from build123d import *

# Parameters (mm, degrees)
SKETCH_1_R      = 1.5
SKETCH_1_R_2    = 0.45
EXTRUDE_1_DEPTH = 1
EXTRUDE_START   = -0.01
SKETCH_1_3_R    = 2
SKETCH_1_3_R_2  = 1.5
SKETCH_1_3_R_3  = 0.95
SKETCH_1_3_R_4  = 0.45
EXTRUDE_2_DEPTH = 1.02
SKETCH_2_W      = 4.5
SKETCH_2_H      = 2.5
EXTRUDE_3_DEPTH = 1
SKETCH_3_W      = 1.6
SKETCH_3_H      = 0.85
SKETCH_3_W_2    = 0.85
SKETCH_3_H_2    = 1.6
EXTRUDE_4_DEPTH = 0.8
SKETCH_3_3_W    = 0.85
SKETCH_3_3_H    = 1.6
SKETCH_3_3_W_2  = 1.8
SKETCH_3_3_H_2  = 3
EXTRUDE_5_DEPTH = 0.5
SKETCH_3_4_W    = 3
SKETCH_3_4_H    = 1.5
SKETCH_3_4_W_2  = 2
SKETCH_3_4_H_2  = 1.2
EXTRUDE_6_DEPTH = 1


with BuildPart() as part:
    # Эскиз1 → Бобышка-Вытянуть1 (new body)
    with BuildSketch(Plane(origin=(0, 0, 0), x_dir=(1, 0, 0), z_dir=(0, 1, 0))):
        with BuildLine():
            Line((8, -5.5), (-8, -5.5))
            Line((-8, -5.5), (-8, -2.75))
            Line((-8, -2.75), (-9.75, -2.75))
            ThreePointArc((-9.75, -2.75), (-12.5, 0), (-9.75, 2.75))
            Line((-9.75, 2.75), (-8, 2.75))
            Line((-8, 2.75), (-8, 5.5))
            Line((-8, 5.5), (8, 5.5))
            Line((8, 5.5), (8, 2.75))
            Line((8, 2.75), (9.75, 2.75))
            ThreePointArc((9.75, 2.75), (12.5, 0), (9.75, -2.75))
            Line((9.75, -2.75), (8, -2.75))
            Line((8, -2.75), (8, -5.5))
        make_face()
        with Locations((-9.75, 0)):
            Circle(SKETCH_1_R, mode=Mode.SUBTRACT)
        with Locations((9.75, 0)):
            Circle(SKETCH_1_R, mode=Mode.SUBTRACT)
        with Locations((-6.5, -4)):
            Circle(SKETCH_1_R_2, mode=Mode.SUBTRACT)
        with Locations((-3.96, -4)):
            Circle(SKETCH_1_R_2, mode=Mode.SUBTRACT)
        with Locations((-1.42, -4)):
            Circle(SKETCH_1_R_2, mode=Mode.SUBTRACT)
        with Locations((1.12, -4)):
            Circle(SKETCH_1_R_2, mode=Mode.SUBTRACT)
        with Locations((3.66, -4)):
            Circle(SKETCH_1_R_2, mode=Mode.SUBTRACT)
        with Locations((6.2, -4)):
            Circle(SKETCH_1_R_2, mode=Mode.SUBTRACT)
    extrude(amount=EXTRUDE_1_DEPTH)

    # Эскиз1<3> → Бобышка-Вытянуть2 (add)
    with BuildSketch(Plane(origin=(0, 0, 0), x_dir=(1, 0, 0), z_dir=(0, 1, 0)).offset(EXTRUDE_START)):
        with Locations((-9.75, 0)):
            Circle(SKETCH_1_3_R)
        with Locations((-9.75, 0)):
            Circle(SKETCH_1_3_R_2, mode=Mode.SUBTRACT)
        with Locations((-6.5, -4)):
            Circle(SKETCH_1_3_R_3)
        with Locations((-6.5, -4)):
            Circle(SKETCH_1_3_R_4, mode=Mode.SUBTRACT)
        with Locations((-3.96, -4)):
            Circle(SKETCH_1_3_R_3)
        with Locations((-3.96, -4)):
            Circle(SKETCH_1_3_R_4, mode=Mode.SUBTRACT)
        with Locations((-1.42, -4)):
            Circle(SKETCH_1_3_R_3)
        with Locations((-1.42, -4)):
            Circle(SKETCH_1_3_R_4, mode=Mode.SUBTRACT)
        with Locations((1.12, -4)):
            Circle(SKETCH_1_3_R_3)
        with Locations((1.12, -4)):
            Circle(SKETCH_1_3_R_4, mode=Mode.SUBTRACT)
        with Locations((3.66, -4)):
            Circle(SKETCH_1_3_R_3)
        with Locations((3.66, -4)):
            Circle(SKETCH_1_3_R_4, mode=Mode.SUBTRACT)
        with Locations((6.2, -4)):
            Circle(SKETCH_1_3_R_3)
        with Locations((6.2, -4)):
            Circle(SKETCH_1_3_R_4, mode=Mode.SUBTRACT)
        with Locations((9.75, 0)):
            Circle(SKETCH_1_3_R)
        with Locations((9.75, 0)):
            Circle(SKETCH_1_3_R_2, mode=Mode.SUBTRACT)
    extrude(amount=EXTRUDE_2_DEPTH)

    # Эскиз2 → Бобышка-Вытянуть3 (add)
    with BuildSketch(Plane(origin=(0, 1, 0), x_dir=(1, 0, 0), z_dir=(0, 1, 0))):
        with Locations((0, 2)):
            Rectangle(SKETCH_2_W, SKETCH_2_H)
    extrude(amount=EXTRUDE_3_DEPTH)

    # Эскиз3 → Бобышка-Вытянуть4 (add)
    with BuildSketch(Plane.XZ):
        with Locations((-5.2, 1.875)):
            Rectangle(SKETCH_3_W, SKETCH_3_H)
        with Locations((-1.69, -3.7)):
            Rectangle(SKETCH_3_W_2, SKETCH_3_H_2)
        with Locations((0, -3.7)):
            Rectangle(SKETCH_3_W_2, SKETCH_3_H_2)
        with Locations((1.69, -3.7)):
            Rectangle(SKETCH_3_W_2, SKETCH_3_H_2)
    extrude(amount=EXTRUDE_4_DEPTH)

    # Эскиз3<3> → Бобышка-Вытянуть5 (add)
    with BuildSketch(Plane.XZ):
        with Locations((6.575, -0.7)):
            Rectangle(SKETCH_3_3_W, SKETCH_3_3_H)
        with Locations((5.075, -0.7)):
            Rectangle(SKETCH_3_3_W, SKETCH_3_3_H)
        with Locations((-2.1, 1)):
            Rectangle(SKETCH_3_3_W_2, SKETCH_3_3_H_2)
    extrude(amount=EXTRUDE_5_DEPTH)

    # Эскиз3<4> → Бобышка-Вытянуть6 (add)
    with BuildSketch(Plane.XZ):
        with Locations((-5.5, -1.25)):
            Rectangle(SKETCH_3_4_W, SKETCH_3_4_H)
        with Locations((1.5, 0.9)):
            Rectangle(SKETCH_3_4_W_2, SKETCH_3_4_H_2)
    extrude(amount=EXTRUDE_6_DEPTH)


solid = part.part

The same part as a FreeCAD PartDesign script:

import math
import FreeCAD as App
import Part
import Sketcher
from FreeCAD import Vector


def add_polygon(sketch, points):
    """Adds a closed chain of lines whose ends are joined by coincident constraints."""
    first, n = sketch.GeometryCount, len(points)
    for a, b in zip(points, points[1:] + points[:1]):
        sketch.addGeometry(Part.LineSegment(App.Vector(*a, 0), App.Vector(*b, 0)), False)
    for i in range(n):
        sketch.addConstraint(Sketcher.Constraint("Coincident", first + i, 2, first + (i + 1) % n, 1))

doc = App.newDocument("Part")
body = doc.addObject("PartDesign::Body", "Body")

sketch1 = body.newObject("Sketcher::SketchObject", "Sketch")
sketch1.AttachmentSupport = (doc.getObject("XZ_Plane"), [""])
sketch1.MapMode = "FlatFace"
sketch1.addGeometry(Part.LineSegment(Vector(-8, 5.5, 0), Vector(8, 5.5, 0)), False)
sketch1.addGeometry(Part.LineSegment(Vector(8, 5.5, 0), Vector(8, 2.75, 0)), False)
sketch1.addGeometry(Part.LineSegment(Vector(8, 2.75, 0), Vector(9.75, 2.75, 0)), False)
sketch1.addGeometry(Part.ArcOfCircle(Part.Circle(Vector(9.75, 0, 0), Vector(0, 0, 1), 2.75), math.radians(-90), math.radians(90)), False)
sketch1.addGeometry(Part.LineSegment(Vector(9.75, -2.75, 0), Vector(8, -2.75, 0)), False)
sketch1.addGeometry(Part.LineSegment(Vector(8, -2.75, 0), Vector(8, -5.5, 0)), False)
sketch1.addGeometry(Part.LineSegment(Vector(8, -5.5, 0), Vector(-8, -5.5, 0)), False)
sketch1.addGeometry(Part.LineSegment(Vector(-8, -5.5, 0), Vector(-8, -2.75, 0)), False)
sketch1.addGeometry(Part.LineSegment(Vector(-8, -2.75, 0), Vector(-9.75, -2.75, 0)), False)
sketch1.addGeometry(Part.ArcOfCircle(Part.Circle(Vector(-9.75, 0, 0), Vector(0, 0, 1), 2.75), math.radians(90), math.radians(270)), False)
sketch1.addGeometry(Part.LineSegment(Vector(-9.75, 2.75, 0), Vector(-8, 2.75, 0)), False)
sketch1.addGeometry(Part.LineSegment(Vector(-8, 2.75, 0), Vector(-8, 5.5, 0)), False)
sketch1.addGeometry(Part.Circle(Vector(6.2, 4, 0), Vector(0, 0, 1), 0.45), False)
sketch1.addGeometry(Part.Circle(Vector(3.66, 4, 0), Vector(0, 0, 1), 0.45), False)
sketch1.addGeometry(Part.Circle(Vector(1.12, 4, 0), Vector(0, 0, 1), 0.45), False)
sketch1.addGeometry(Part.Circle(Vector(-1.42, 4, 0), Vector(0, 0, 1), 0.45), False)
sketch1.addGeometry(Part.Circle(Vector(-3.96, 4, 0), Vector(0, 0, 1), 0.45), False)
sketch1.addGeometry(Part.Circle(Vector(-6.5, 4, 0), Vector(0, 0, 1), 0.45), False)
sketch1.addGeometry(Part.Circle(Vector(9.75, 0, 0), Vector(0, 0, 1), 1.5), False)
sketch1.addGeometry(Part.Circle(Vector(-9.75, 0, 0), Vector(0, 0, 1), 1.5), False)
sketch1.addConstraint(Sketcher.Constraint("Coincident", 0, 2, 1, 1))
sketch1.addConstraint(Sketcher.Constraint("Coincident", 1, 2, 2, 1))
sketch1.addConstraint(Sketcher.Constraint("Tangent", 2, 2, 3, 2))
sketch1.addConstraint(Sketcher.Constraint("Tangent", 3, 1, 4, 1))
sketch1.addConstraint(Sketcher.Constraint("Coincident", 4, 2, 5, 1))
sketch1.addConstraint(Sketcher.Constraint("Coincident", 5, 2, 6, 1))
sketch1.addConstraint(Sketcher.Constraint("Coincident", 6, 2, 7, 1))
sketch1.addConstraint(Sketcher.Constraint("Coincident", 7, 2, 8, 1))
sketch1.addConstraint(Sketcher.Constraint("Tangent", 8, 2, 9, 2))
sketch1.addConstraint(Sketcher.Constraint("Tangent", 9, 1, 10, 1))
sketch1.addConstraint(Sketcher.Constraint("Coincident", 10, 2, 11, 1))
sketch1.addConstraint(Sketcher.Constraint("Coincident", 11, 2, 0, 1))
sketch1.addConstraint(Sketcher.Constraint("Horizontal", 0))
sketch1.addConstraint(Sketcher.Constraint("Vertical", 1))
sketch1.addConstraint(Sketcher.Constraint("Horizontal", 2))
sketch1.addConstraint(Sketcher.Constraint("Horizontal", 4))
sketch1.addConstraint(Sketcher.Constraint("Vertical", 5))
sketch1.addConstraint(Sketcher.Constraint("Horizontal", 6))
sketch1.addConstraint(Sketcher.Constraint("Vertical", 7))
sketch1.addConstraint(Sketcher.Constraint("Horizontal", 8))
sketch1.addConstraint(Sketcher.Constraint("Horizontal", 10))
sketch1.addConstraint(Sketcher.Constraint("Vertical", 11))
sketch1.addConstraint(Sketcher.Constraint("Coincident", 18, 3, 3, 3))
sketch1.addConstraint(Sketcher.Constraint("Coincident", 19, 3, 9, 3))
sketch1.addConstraint(Sketcher.Constraint("Equal", 3, 9))
sketch1.addConstraint(Sketcher.Constraint("Equal", 12, 13))
sketch1.addConstraint(Sketcher.Constraint("Equal", 13, 14))
sketch1.addConstraint(Sketcher.Constraint("Equal", 14, 15))
sketch1.addConstraint(Sketcher.Constraint("Equal", 15, 16))
sketch1.addConstraint(Sketcher.Constraint("Equal", 16, 17))
sketch1.addConstraint(Sketcher.Constraint("Equal", 18, 19))
sketch1.addConstraint(Sketcher.Constraint("Symmetric", 3, 3, 9, 3, -1, 1))
sketch1.addConstraint(Sketcher.Constraint("Symmetric", 0, 2, 6, 2, -1, 1))
sketch1.addConstraint(Sketcher.Constraint("Symmetric", 4, 2, 7, 2, -2))
sketch1.addConstraint(Sketcher.Constraint("Horizontal", 12, 3, 13, 3))
sketch1.addConstraint(Sketcher.Constraint("Horizontal", 13, 3, 14, 3))
sketch1.addConstraint(Sketcher.Constraint("Horizontal", 14, 3, 15, 3))
sketch1.addConstraint(Sketcher.Constraint("Horizontal", 15, 3, 16, 3))
sketch1.addConstraint(Sketcher.Constraint("Horizontal", 16, 3, 17, 3))
sketch1.addConstraint(Sketcher.Constraint("Vertical", 7, 2, 10, 2))
sketch1.addConstraint(Sketcher.Constraint("Diameter", 18, 3.0))
sketch1.addConstraint(Sketcher.Constraint("Diameter", 12, 0.9))
sketch1.addConstraint(Sketcher.Constraint("DistanceX", 0, 1, 0, 2, 16.0))
sketch1.addConstraint(Sketcher.Constraint("Radius", 3, 2.75))
sketch1.addConstraint(Sketcher.Constraint("DistanceY", -1, 1, 12, 3, 4.0))
sketch1.addConstraint(Sketcher.Constraint("DistanceX", 2, 1, 2, 2, 1.75))
sketch1.addConstraint(Sketcher.Constraint("DistanceY", 1, 2, 1, 1, 2.75))
sketch1.addConstraint(Sketcher.Constraint("DistanceX", -1, 1, 12, 3, 6.2))
sketch1.addConstraint(Sketcher.Constraint("DistanceX", 17, 3, -1, 1, 6.5))
sketch1.addConstraint(Sketcher.Constraint("DistanceX", -1, 1, 13, 3, 3.66))
sketch1.addConstraint(Sketcher.Constraint("DistanceX", -1, 1, 14, 3, 1.12))
sketch1.addConstraint(Sketcher.Constraint("DistanceX", 15, 3, -1, 1, 1.42))
sketch1.addConstraint(Sketcher.Constraint("DistanceX", 16, 3, -1, 1, 3.96))
pad1 = body.newObject("PartDesign::Pad", "Pad")
pad1.Profile = sketch1
pad1.Length = 1
pad1.Reversed = True

sketch2 = body.newObject("Sketcher::SketchObject", "Sketch001")
sketch2.AttachmentSupport = (doc.getObject("XZ_Plane"), [""])
sketch2.MapMode = "FlatFace"
sketch2.AttachmentOffset = App.Placement(Vector(0, 0, 0.01), App.Rotation())
sketch2.addGeometry(Part.Circle(Vector(-9.75, 0, 0), Vector(0, 0, 1), 2), False)
sketch2.addGeometry(Part.Circle(Vector(-9.75, 0, 0), Vector(0, 0, 1), 1.5), False)
sketch2.addGeometry(Part.Circle(Vector(-6.5, 4, 0), Vector(0, 0, 1), 0.95), False)
sketch2.addGeometry(Part.Circle(Vector(-6.5, 4, 0), Vector(0, 0, 1), 0.45), False)
sketch2.addGeometry(Part.Circle(Vector(-3.96, 4, 0), Vector(0, 0, 1), 0.95), False)
sketch2.addGeometry(Part.Circle(Vector(-3.96, 4, 0), Vector(0, 0, 1), 0.45), False)
sketch2.addGeometry(Part.Circle(Vector(-1.42, 4, 0), Vector(0, 0, 1), 0.95), False)
sketch2.addGeometry(Part.Circle(Vector(-1.42, 4, 0), Vector(0, 0, 1), 0.45), False)
sketch2.addGeometry(Part.Circle(Vector(1.12, 4, 0), Vector(0, 0, 1), 0.95), False)
sketch2.addGeometry(Part.Circle(Vector(1.12, 4, 0), Vector(0, 0, 1), 0.45), False)
sketch2.addGeometry(Part.Circle(Vector(3.66, 4, 0), Vector(0, 0, 1), 0.95), False)
sketch2.addGeometry(Part.Circle(Vector(3.66, 4, 0), Vector(0, 0, 1), 0.45), False)
sketch2.addGeometry(Part.Circle(Vector(6.2, 4, 0), Vector(0, 0, 1), 0.95), False)
sketch2.addGeometry(Part.Circle(Vector(6.2, 4, 0), Vector(0, 0, 1), 0.45), False)
sketch2.addGeometry(Part.Circle(Vector(9.75, 0, 0), Vector(0, 0, 1), 2), False)
sketch2.addGeometry(Part.Circle(Vector(9.75, 0, 0), Vector(0, 0, 1), 1.5), False)
sketch2.addConstraint(Sketcher.Constraint("Coincident", 1, 3, 0, 3))
sketch2.addConstraint(Sketcher.Constraint("Coincident", 3, 3, 2, 3))
sketch2.addConstraint(Sketcher.Constraint("Coincident", 5, 3, 4, 3))
sketch2.addConstraint(Sketcher.Constraint("Coincident", 7, 3, 6, 3))
sketch2.addConstraint(Sketcher.Constraint("Coincident", 9, 3, 8, 3))
sketch2.addConstraint(Sketcher.Constraint("Coincident", 11, 3, 10, 3))
sketch2.addConstraint(Sketcher.Constraint("Coincident", 13, 3, 12, 3))
sketch2.addConstraint(Sketcher.Constraint("Coincident", 15, 3, 14, 3))
sketch2.addConstraint(Sketcher.Constraint("Equal", 2, 4))
sketch2.addConstraint(Sketcher.Constraint("Equal", 3, 5))
sketch2.addConstraint(Sketcher.Constraint("Equal", 4, 6))
sketch2.addConstraint(Sketcher.Constraint("Equal", 5, 7))
sketch2.addConstraint(Sketcher.Constraint("Equal", 6, 8))
sketch2.addConstraint(Sketcher.Constraint("Equal", 7, 9))
sketch2.addConstraint(Sketcher.Constraint("Equal", 8, 10))
sketch2.addConstraint(Sketcher.Constraint("Equal", 9, 11))
sketch2.addConstraint(Sketcher.Constraint("Equal", 10, 12))
sketch2.addConstraint(Sketcher.Constraint("Equal", 11, 13))
sketch2.addConstraint(Sketcher.Constraint("Equal", 0, 14))
sketch2.addConstraint(Sketcher.Constraint("Equal", 1, 15))
sketch2.addConstraint(Sketcher.Constraint("Symmetric", 0, 3, 14, 3, -1, 1))
sketch2.addConstraint(Sketcher.Constraint("PointOnObject", 0, 3, -1))
sketch2.addConstraint(Sketcher.Constraint("Horizontal", 3, 3, 4, 3))
sketch2.addConstraint(Sketcher.Constraint("Horizontal", 5, 3, 6, 3))
sketch2.addConstraint(Sketcher.Constraint("Horizontal", 7, 3, 8, 3))
sketch2.addConstraint(Sketcher.Constraint("Horizontal", 9, 3, 10, 3))
sketch2.addConstraint(Sketcher.Constraint("Horizontal", 11, 3, 12, 3))
sketch2.addConstraint(Sketcher.Constraint("Diameter", 0, 4.0))
sketch2.addConstraint(Sketcher.Constraint("Diameter", 1, 3.0))
sketch2.addConstraint(Sketcher.Constraint("Diameter", 2, 1.9))
sketch2.addConstraint(Sketcher.Constraint("Diameter", 3, 0.9))
sketch2.addConstraint(Sketcher.Constraint("DistanceY", -1, 1, 2, 3, 4.0))
sketch2.addConstraint(Sketcher.Constraint("DistanceX", 2, 3, -1, 1, 6.5))
sketch2.addConstraint(Sketcher.Constraint("DistanceX", -1, 1, 12, 3, 6.2))
sketch2.addConstraint(Sketcher.Constraint("DistanceX", 0, 3, -1, 1, 9.75))
sketch2.addConstraint(Sketcher.Constraint("DistanceX", 4, 3, -1, 1, 3.96))
sketch2.addConstraint(Sketcher.Constraint("DistanceX", 6, 3, -1, 1, 1.42))
sketch2.addConstraint(Sketcher.Constraint("DistanceX", -1, 1, 8, 3, 1.12))
sketch2.addConstraint(Sketcher.Constraint("DistanceX", -1, 1, 10, 3, 3.66))
pad2 = body.newObject("PartDesign::Pad", "Pad001")
pad2.Profile = sketch2
pad2.Length = 1.02
pad2.Reversed = True

sketch3 = body.newObject("Sketcher::SketchObject", "Sketch002")
sketch3.AttachmentSupport = (doc.getObject("XZ_Plane"), [""])
sketch3.MapMode = "FlatFace"
sketch3.AttachmentOffset = App.Placement(Vector(0, 0, -1), App.Rotation())
add_polygon(sketch3, [(-2.25, -3.25), (-2.25, -0.75), (2.25, -0.75), (2.25, -3.25)])
sketch3.addConstraint(Sketcher.Constraint("Vertical", 0))
sketch3.addConstraint(Sketcher.Constraint("Horizontal", 1))
sketch3.addConstraint(Sketcher.Constraint("Vertical", 2))
sketch3.addConstraint(Sketcher.Constraint("Horizontal", 3))
sketch3.addConstraint(Sketcher.Constraint("DistanceX", 1, 1, 1, 2, 4.5))
sketch3.addConstraint(Sketcher.Constraint("DistanceY", 0, 1, 0, 2, 2.5))
sketch3.addConstraint(Sketcher.Constraint("DistanceX", 0, 2, -1, 1, 2.25))
sketch3.addConstraint(Sketcher.Constraint("DistanceY", 0, 2, -1, 1, 0.75))
pad3 = body.newObject("PartDesign::Pad", "Pad002")
pad3.Profile = sketch3
pad3.Length = 1
pad3.Reversed = True

sketch4 = body.newObject("Sketcher::SketchObject", "Sketch003")
sketch4.AttachmentSupport = (doc.getObject("XZ_Plane"), [""])
sketch4.MapMode = "FlatFace"
add_polygon(sketch4, [(-6, 2.3), (-6, 1.45), (-4.4, 1.45), (-4.4, 2.3)])
add_polygon(sketch4, [(-2.115, -2.9), (-2.115, -4.5), (-1.265, -4.5), (-1.265, -2.9)])
add_polygon(sketch4, [(-0.425, -2.9), (-0.425, -4.5), (0.425, -4.5), (0.425, -2.9)])
add_polygon(sketch4, [(1.265, -2.9), (1.265, -4.5), (2.115, -4.5), (2.115, -2.9)])
sketch4.addConstraint(Sketcher.Constraint("Vertical", 0))
sketch4.addConstraint(Sketcher.Constraint("Horizontal", 1))
sketch4.addConstraint(Sketcher.Constraint("Vertical", 2))
sketch4.addConstraint(Sketcher.Constraint("Horizontal", 3))
sketch4.addConstraint(Sketcher.Constraint("Vertical", 4))
sketch4.addConstraint(Sketcher.Constraint("Horizontal", 5))
sketch4.addConstraint(Sketcher.Constraint("Vertical", 6))
sketch4.addConstraint(Sketcher.Constraint("Horizontal", 7))
sketch4.addConstraint(Sketcher.Constraint("Vertical", 8))
sketch4.addConstraint(Sketcher.Constraint("Horizontal", 9))
sketch4.addConstraint(Sketcher.Constraint("Vertical", 10))
sketch4.addConstraint(Sketcher.Constraint("Horizontal", 11))
sketch4.addConstraint(Sketcher.Constraint("Vertical", 12))
sketch4.addConstraint(Sketcher.Constraint("Horizontal", 13))
sketch4.addConstraint(Sketcher.Constraint("Vertical", 14))
sketch4.addConstraint(Sketcher.Constraint("Horizontal", 15))
sketch4.addConstraint(Sketcher.Constraint("Symmetric", 5, 2, 12, 2, -2))
sketch4.addConstraint(Sketcher.Constraint("Symmetric", 7, 2, 14, 2, -2))
sketch4.addConstraint(Sketcher.Constraint("Horizontal", 5, 2, 8, 2))
sketch4.addConstraint(Sketcher.Constraint("Horizontal", 7, 2, 10, 2))
sketch4.addConstraint(Sketcher.Constraint("Equal", 7, 9))
sketch4.addConstraint(Sketcher.Constraint("Equal", 15, 0))
sketch4.addConstraint(Sketcher.Constraint("Equal", 3, 4))
sketch4.addConstraint(Sketcher.Constraint("DistanceX", 1, 1, 1, 2, 1.6))
sketch4.addConstraint(Sketcher.Constraint("DistanceX", 0, 2, -1, 1, 6.0))
sketch4.addConstraint(Sketcher.Constraint("DistanceX", 5, 1, 5, 2, 0.85))
sketch4.addConstraint(Sketcher.Constraint("DistanceY", -1, 1, 2, 2, 2.3))
sketch4.addConstraint(Sketcher.Constraint("DistanceY", 4, 2, -1, 1, 4.5))
sketch4.addConstraint(Sketcher.Constraint("DistanceX", 5, 2, 8, 2, 0.84))
sketch4.addConstraint(Sketcher.Constraint("DistanceX", 9, 2, 12, 2, 0.84))
pad4 = body.newObject("PartDesign::Pad", "Pad003")
pad4.Profile = sketch4
pad4.Length = 0.8

sketch5 = body.newObject("Sketcher::SketchObject", "Sketch004")
sketch5.AttachmentSupport = (doc.getObject("XZ_Plane"), [""])
sketch5.MapMode = "FlatFace"
add_polygon(sketch5, [(6.15, 0.1), (6.15, -1.5), (7, -1.5), (7, 0.1)])
add_polygon(sketch5, [(4.65, 0.1), (4.65, -1.5), (5.5, -1.5), (5.5, 0.1)])
add_polygon(sketch5, [(-3, 2.5), (-3, -0.5), (-1.2, -0.5), (-1.2, 2.5)])
sketch5.addConstraint(Sketcher.Constraint("Vertical", 0))
sketch5.addConstraint(Sketcher.Constraint("Horizontal", 1))
sketch5.addConstraint(Sketcher.Constraint("Vertical", 2))
sketch5.addConstraint(Sketcher.Constraint("Horizontal", 3))
sketch5.addConstraint(Sketcher.Constraint("Vertical", 4))
sketch5.addConstraint(Sketcher.Constraint("Horizontal", 5))
sketch5.addConstraint(Sketcher.Constraint("Vertical", 6))
sketch5.addConstraint(Sketcher.Constraint("Horizontal", 7))
sketch5.addConstraint(Sketcher.Constraint("Vertical", 8))
sketch5.addConstraint(Sketcher.Constraint("Horizontal", 9))
sketch5.addConstraint(Sketcher.Constraint("Vertical", 10))
sketch5.addConstraint(Sketcher.Constraint("Horizontal", 11))
sketch5.addConstraint(Sketcher.Constraint("Horizontal", 1, 2, 4, 2))
sketch5.addConstraint(Sketcher.Constraint("Horizontal", 3, 2, 6, 2))
sketch5.addConstraint(Sketcher.Constraint("Equal", 3, 5))
sketch5.addConstraint(Sketcher.Constraint("DistanceY", 8, 2, 8, 1, 3.0))
sketch5.addConstraint(Sketcher.Constraint("DistanceX", 9, 1, 9, 2, 1.8))
sketch5.addConstraint(Sketcher.Constraint("DistanceY", 0, 2, 0, 1, 1.6))
sketch5.addConstraint(Sketcher.Constraint("DistanceX", -1, 1, 1, 2, 7.0))
sketch5.addConstraint(Sketcher.Constraint("DistanceX", 8, 2, -1, 1, 3.0))
sketch5.addConstraint(Sketcher.Constraint("DistanceY", 4, 2, 8, 2, 1.0))
sketch5.addConstraint(Sketcher.Constraint("DistanceX", 1, 1, 1, 2, 0.85))
sketch5.addConstraint(Sketcher.Constraint("DistanceY", 0, 2, -1, 1, 1.5))
sketch5.addConstraint(Sketcher.Constraint("DistanceX", -1, 1, 5, 2, 5.5))
pad5 = body.newObject("PartDesign::Pad", "Pad004")
pad5.Profile = sketch5
pad5.Length = 0.5

sketch6 = body.newObject("Sketcher::SketchObject", "Sketch005")
sketch6.AttachmentSupport = (doc.getObject("XZ_Plane"), [""])
sketch6.MapMode = "FlatFace"
add_polygon(sketch6, [(-7, -0.5), (-7, -2), (-4, -2), (-4, -0.5)])
add_polygon(sketch6, [(0.5, 1.5), (0.5, 0.3), (2.5, 0.3), (2.5, 1.5)])
sketch6.addConstraint(Sketcher.Constraint("Vertical", 0))
sketch6.addConstraint(Sketcher.Constraint("Horizontal", 1))
sketch6.addConstraint(Sketcher.Constraint("Vertical", 2))
sketch6.addConstraint(Sketcher.Constraint("Horizontal", 3))
sketch6.addConstraint(Sketcher.Constraint("Vertical", 4))
sketch6.addConstraint(Sketcher.Constraint("Horizontal", 5))
sketch6.addConstraint(Sketcher.Constraint("Vertical", 6))
sketch6.addConstraint(Sketcher.Constraint("Horizontal", 7))
sketch6.addConstraint(Sketcher.Constraint("DistanceX", 1, 1, 1, 2, 3.0))
sketch6.addConstraint(Sketcher.Constraint("DistanceX", 5, 1, 5, 2, 2.0))
sketch6.addConstraint(Sketcher.Constraint("DistanceY", 0, 2, 0, 1, 1.5))
sketch6.addConstraint(Sketcher.Constraint("DistanceY", 4, 2, 4, 1, 1.2))
sketch6.addConstraint(Sketcher.Constraint("DistanceX", 0, 2, -1, 1, 7.0))
sketch6.addConstraint(Sketcher.Constraint("DistanceY", 0, 2, -1, 1, 2.0))
sketch6.addConstraint(Sketcher.Constraint("DistanceY", 2, 2, 6, 2, 2.0))
sketch6.addConstraint(Sketcher.Constraint("DistanceX", -1, 1, 4, 2, 0.5))
pad6 = body.newObject("PartDesign::Pad", "Pad005")
pad6.Profile = sketch6
pad6.Length = 1

doc.recompute()
